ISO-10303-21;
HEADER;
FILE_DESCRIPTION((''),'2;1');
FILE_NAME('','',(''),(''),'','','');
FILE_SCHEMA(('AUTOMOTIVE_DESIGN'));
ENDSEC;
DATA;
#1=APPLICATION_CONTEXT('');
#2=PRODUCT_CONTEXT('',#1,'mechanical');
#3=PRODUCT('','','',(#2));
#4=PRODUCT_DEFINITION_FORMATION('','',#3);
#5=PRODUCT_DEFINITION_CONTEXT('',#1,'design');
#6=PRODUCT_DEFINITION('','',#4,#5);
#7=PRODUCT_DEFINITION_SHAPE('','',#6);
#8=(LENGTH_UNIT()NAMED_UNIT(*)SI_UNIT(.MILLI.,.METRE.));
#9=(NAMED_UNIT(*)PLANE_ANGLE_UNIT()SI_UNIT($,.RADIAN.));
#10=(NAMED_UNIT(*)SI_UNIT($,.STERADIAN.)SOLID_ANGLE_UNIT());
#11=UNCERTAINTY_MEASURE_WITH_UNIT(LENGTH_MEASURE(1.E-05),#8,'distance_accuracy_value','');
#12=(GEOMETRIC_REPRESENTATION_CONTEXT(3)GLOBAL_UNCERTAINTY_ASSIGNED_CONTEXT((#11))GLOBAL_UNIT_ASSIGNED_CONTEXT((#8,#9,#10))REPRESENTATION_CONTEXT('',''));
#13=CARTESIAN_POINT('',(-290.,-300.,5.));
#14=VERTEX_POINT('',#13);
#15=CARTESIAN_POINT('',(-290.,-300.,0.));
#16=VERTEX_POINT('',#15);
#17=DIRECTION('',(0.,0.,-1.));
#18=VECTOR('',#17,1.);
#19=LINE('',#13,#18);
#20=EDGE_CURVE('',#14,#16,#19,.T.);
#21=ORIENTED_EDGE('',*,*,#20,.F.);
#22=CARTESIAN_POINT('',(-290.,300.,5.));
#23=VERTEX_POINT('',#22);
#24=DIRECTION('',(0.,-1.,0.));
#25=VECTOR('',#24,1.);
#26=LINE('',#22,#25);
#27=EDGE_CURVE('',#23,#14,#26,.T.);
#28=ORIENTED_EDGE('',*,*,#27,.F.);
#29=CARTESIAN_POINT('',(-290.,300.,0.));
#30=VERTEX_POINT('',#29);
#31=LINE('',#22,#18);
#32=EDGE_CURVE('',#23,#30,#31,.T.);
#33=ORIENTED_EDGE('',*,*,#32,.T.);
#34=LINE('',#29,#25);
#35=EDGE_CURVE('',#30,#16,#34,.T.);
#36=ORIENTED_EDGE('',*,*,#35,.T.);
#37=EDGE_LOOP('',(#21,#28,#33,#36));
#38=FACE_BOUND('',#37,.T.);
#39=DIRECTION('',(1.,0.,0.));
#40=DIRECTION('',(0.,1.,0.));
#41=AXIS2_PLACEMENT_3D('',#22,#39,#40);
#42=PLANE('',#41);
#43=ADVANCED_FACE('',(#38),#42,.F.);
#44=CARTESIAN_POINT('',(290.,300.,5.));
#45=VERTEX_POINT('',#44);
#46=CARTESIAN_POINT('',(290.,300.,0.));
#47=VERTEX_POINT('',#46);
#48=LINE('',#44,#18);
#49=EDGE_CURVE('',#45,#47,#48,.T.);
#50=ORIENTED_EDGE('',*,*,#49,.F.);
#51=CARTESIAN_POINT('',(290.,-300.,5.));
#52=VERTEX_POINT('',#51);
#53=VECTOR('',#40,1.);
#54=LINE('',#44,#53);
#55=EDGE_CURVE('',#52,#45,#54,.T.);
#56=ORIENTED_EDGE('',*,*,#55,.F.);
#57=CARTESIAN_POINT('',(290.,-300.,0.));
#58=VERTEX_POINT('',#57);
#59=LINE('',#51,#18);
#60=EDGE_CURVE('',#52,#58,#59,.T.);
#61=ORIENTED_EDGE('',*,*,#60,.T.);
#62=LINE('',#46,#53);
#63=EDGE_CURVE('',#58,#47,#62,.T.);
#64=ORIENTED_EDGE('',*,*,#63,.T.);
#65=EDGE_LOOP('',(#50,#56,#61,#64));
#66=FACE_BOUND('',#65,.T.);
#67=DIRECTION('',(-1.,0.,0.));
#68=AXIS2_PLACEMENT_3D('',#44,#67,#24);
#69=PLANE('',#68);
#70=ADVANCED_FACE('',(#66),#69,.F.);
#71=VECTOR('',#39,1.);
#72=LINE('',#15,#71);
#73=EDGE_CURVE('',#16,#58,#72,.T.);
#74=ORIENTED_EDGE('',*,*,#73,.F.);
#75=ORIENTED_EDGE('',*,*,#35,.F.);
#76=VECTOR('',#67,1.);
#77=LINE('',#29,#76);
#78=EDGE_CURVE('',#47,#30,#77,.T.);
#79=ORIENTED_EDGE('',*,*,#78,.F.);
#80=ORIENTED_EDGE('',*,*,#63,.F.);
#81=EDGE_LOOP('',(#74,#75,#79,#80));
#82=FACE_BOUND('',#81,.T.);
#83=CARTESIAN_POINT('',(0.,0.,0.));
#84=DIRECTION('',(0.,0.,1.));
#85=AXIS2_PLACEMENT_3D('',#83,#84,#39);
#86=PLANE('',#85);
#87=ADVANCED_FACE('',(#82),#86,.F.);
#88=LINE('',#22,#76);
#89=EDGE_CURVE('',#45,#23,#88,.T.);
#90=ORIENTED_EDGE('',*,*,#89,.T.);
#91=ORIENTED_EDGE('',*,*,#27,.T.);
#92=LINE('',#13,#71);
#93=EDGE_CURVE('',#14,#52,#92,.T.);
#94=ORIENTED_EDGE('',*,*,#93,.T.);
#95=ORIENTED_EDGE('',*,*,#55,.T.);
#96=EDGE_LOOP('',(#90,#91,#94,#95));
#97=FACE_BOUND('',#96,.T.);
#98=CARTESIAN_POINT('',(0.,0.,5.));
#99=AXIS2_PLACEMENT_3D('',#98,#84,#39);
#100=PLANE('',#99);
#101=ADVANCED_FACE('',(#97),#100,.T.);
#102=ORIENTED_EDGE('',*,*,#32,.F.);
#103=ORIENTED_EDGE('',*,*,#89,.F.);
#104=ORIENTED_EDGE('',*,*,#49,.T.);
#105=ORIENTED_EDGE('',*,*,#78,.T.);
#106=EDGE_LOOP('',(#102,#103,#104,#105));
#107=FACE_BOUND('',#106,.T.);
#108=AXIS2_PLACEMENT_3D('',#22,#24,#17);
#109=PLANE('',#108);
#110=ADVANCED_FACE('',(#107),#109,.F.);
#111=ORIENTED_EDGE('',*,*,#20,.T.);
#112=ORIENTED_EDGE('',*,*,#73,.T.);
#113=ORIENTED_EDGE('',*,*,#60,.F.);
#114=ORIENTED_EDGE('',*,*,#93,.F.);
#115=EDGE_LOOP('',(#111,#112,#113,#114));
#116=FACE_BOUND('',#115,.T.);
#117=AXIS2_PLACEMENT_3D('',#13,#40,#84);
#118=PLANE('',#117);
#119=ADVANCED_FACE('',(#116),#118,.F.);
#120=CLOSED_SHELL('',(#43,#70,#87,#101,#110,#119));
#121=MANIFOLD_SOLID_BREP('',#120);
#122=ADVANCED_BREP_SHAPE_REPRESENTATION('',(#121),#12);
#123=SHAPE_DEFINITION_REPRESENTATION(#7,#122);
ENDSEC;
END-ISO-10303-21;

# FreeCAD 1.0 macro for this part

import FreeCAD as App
import Part
import Sketcher

V = App.Vector


def add_polygon(sketch, points):
    """Adds a closed chain of lines whose ends are joined by coincident constraints."""
    first, n = sketch.GeometryCount, len(points)
    for a, b in zip(points, points[1:] + points[:1]):
        sketch.addGeometry(Part.LineSegment(App.Vector(*a, 0), App.Vector(*b, 0)), False)
    for i in range(n):
        sketch.addConstraint(Sketcher.Constraint("Coincident", first + i, 2, first + (i + 1) % n, 1))

doc = App.newDocument("Part")
body = doc.addObject("PartDesign::Body", "Body")

sketch1 = body.newObject("Sketcher::SketchObject", "Sketch")
sketch1.AttachmentSupport = (doc.getObject("XY_Plane"), [""])
sketch1.MapMode = "FlatFace"
add_polygon(sketch1, [(-290, 300), (-290, -300), (290, -300), (290, 300)])
sketch1.addConstraint(Sketcher.Constraint("Vertical", 0))
sketch1.addConstraint(Sketcher.Constraint("Horizontal", 1))
sketch1.addConstraint(Sketcher.Constraint("Vertical", 2))
sketch1.addConstraint(Sketcher.Constraint("Horizontal", 3))
sketch1.addConstraint(Sketcher.Constraint("Symmetric", 0, 2, 2, 2, -1, 1))
sketch1.addConstraint(Sketcher.Constraint("DistanceX", 1, 1, 1, 2, 580.0))
sketch1.addConstraint(Sketcher.Constraint("DistanceY", 0, 2, 0, 1, 600.0))
pad1 = body.newObject("PartDesign::Pad", "Pad")
pad1.Profile = sketch1
pad1.Length = 5

doc.recompute()
